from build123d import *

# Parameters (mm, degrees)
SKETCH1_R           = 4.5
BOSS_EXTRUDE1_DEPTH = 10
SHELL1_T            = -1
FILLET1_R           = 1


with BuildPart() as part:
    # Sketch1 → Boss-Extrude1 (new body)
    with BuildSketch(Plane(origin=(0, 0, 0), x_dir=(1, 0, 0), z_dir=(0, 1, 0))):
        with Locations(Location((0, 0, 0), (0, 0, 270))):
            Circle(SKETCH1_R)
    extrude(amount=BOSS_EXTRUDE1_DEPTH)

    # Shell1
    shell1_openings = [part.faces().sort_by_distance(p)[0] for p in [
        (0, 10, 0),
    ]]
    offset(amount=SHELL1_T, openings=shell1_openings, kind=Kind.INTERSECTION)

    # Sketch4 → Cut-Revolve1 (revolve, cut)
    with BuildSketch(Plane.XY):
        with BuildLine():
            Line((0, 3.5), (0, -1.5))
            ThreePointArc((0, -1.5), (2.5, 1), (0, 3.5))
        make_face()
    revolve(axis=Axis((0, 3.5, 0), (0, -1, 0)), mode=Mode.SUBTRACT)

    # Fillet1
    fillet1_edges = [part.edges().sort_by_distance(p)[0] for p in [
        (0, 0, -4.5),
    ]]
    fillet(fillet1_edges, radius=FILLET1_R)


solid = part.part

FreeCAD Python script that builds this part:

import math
import FreeCAD as App
import Part
import Sketcher

V = App.Vector
Q = App.Units.Quantity


def edges_at(feature, points):
    """Names of the edges that pass closest to the given points."""
    edges = feature.Shape.Edges
    near = lambda p: min(range(len(edges)), key=lambda i: edges[i].distToShape(Part.Vertex(*p))[0])
    return sorted({f"Edge{near(p) + 1}" for p in points})


def faces_at(feature, points):
    """Names of the faces that lie closest to the given points."""
    faces = feature.Shape.Faces
    near = lambda p: min(range(len(faces)), key=lambda i: faces[i].distToShape(Part.Vertex(*p))[0])
    return sorted({f"Face{near(p) + 1}" for p in points})

doc = App.newDocument("Part")
body = doc.addObject("PartDesign::Body", "Body")

# Sketch on XZ plane
sketch1 = body.newObject("Sketcher::SketchObject", "Sketch")
sketch1.AttachmentSupport = (doc.getObject("XZ_Plane"), [""])
sketch1.MapMode = "FlatFace"
sketch1.addGeometry(Part.Circle(V(0, 0, 0), V(0, 0, 1), 4.5), False)
sketch1.addConstraint(Sketcher.Constraint("Coincident", 0, 3, -1, 1))
sketch1.addConstraint(Sketcher.Constraint("Diameter", 0, Q("9 mm")))
pad1 = body.newObject("PartDesign::Pad", "Pad")
pad1.Profile = sketch1
pad1.Length = 10
pad1.Reversed = True
doc.recompute()

thickness = body.newObject("PartDesign::Thickness", "Thickness")
thickness.Base = (pad1, faces_at(pad1, [(0, 10, 0)]))
thickness.Value = 1
thickness.Reversed = True
thickness.Join = "Intersection"

# Sketch on XY plane
sketch2 = body.newObject("Sketcher::SketchObject", "Sketch001")
sketch2.AttachmentSupport = (doc.getObject("XY_Plane"), [""])
sketch2.MapMode = "FlatFace"
sketch2.addGeometry(Part.LineSegment(V(0, 3.5, 0), V(0, -1.5, 0)), False)
sketch2.addGeometry(Part.ArcOfCircle(Part.Circle(V(0, 1, 0), V(0, 0, 1), 2.5), math.radians(-90), math.radians(90)), False)
sketch2.addConstraint(Sketcher.Constraint("Coincident", 0, 1, 1, 2))
sketch2.addConstraint(Sketcher.Constraint("Coincident", 1, 1, 0, 2))
sketch2.addConstraint(Sketcher.Constraint("Vertical", 0))
sketch2.addConstraint(Sketcher.Constraint("PointOnObject", 1, 3, -2))
sketch2.addConstraint(Sketcher.Constraint("PointOnObject", 0, 1, -2))
sketch2.addConstraint(Sketcher.Constraint("Radius", 1, Q("2.5 mm")))
sketch2.addConstraint(Sketcher.Constraint("DistanceY", -1, 1, 1, 3, Q("1 mm")))
groove = body.newObject("PartDesign::Groove", "Groove")
groove.Profile = sketch2
groove.ReferenceAxis = (sketch2, ["V_Axis"])
groove.Angle = 360
doc.recompute()

fillet = body.newObject("PartDesign::Fillet", "Fillet")
fillet.Base = (groove, edges_at(groove, [(0, 0, -4.5)]))
fillet.Radius = 1

doc.recompute()
